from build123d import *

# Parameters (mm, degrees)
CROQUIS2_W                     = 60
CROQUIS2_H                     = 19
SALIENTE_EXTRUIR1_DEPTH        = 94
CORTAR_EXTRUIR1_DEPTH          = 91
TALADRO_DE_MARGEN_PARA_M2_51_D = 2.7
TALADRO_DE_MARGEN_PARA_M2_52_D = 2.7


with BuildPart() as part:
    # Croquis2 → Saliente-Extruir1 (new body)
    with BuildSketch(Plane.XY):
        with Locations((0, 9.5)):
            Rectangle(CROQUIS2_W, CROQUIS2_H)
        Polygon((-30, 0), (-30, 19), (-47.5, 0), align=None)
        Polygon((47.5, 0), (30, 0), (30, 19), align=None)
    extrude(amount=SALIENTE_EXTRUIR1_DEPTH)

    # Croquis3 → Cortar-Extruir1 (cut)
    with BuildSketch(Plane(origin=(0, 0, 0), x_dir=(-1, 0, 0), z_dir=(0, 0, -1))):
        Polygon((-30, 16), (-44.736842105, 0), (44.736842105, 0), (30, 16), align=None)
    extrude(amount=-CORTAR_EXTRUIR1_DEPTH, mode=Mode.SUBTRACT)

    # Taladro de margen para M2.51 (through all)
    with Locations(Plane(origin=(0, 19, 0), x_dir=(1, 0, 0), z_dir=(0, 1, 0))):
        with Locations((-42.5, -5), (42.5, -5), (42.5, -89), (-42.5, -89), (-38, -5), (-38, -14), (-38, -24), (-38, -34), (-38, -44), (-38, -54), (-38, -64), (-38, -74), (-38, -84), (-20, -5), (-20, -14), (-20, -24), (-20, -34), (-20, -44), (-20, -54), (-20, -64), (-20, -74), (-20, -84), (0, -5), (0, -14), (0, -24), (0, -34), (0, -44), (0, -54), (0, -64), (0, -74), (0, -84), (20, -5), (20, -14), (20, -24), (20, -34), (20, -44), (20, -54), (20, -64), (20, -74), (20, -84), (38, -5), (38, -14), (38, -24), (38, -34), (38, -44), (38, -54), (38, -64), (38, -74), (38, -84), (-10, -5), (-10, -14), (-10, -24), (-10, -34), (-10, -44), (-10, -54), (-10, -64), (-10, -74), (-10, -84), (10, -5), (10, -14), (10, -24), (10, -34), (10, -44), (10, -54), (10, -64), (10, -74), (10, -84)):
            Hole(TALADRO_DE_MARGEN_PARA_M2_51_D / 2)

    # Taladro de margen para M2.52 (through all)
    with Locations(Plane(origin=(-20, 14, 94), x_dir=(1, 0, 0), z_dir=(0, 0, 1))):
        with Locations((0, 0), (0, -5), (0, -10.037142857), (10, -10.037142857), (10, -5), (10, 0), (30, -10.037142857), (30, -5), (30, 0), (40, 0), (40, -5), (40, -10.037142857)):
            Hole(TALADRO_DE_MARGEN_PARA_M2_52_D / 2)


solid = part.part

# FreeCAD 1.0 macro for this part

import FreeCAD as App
import Part
import Sketcher


def add_polygon(sketch, points):
    """Adds a closed chain of lines whose ends are joined by coincident constraints."""
    first, n = sketch.GeometryCount, len(points)
    for a, b in zip(points, points[1:] + points[:1]):
        sketch.addGeometry(Part.LineSegment(App.Vector(*a, 0), App.Vector(*b, 0)), False)
    for i in range(n):
        sketch.addConstraint(Sketcher.Constraint("Coincident", first + i, 2, first + (i + 1) % n, 1))

doc = App.newDocument("Part")
params = doc.addObject("Spreadsheet::Sheet", "Params")
for row, (alias, value) in enumerate([
    ("sketch1_width", "60 mm"),
    ("sketch1_width2", "95 mm"),
    ("pad1_length", "94 mm"),
    ("sketch2_width", "60 mm"),
    ("pocket1_length", "91 mm"),
    ("sketch3_diameter", "2.7 mm"),
    ("hole_diameter", "2.7 mm"),
    ("sketch4_diameter", "2.7 mm"),
    ("hole2_diameter", "2.7 mm"),
], start=1):
    params.set(f"A{row}", alias)
    params.set(f"B{row}", "=" + value)
    params.setAlias(f"B{row}", alias)

body = doc.addObject("PartDesign::Body", "Body")

# Sketch on XY plane
sketch1 = body.newObject("Sketcher::SketchObject", "Sketch")
sketch1.AttachmentSupport = (doc.getObject("XY_Plane"), [""])
sketch1.MapMode = "FlatFace"
add_polygon(sketch1, [(30, 19), (-30, 19), (-48, 0), (48, 0)])  # lines 0-3
sketch1.addConstraint(Sketcher.Constraint("Horizontal", 0))
sketch1.addConstraint(Sketcher.Constraint("Horizontal", 2))
sketch1.addConstraint(Sketcher.Constraint("Symmetric", 1, 2, 2, 2, -1, 1))
sketch1.addConstraint(Sketcher.Constraint("Equal", 1, 3))
sketch1.addConstraint(Sketcher.Constraint("DistanceX", 0, 2, 0, 1, 60.0))
sketch1.addConstraint(Sketcher.Constraint("DistanceX", 2, 1, 2, 2, 95.0))
sketch1.addConstraint(Sketcher.Constraint("DistanceY", -1, 1, 0, 2, 19.0))
sketch1.setExpression("Constraints[8]", "Params.sketch1_width")
sketch1.setExpression("Constraints[9]", "Params.sketch1_width2")
pad1 = body.newObject("PartDesign::Pad", "Pad")
pad1.Profile = sketch1
pad1.setExpression("Length", "Params.pad1_length")

# Sketch on XY plane
sketch2 = body.newObject("Sketcher::SketchObject", "Sketch001")
sketch2.AttachmentSupport = (doc.getObject("XY_Plane"), [""])
sketch2.MapMode = "FlatFace"
add_polygon(sketch2, [(30, 16), (45, 0), (-45, 0), (-30, 16)])  # lines 0-3
sketch2.addConstraint(Sketcher.Constraint("Horizontal", 1))
sketch2.addConstraint(Sketcher.Constraint("Horizontal", 3))
sketch2.addConstraint(Sketcher.Constraint("Symmetric", 0, 2, 1, 2, -1, 1))
sketch2.addConstraint(Sketcher.Constraint("Equal", 0, 2))
sketch2.addConstraint(Sketcher.Constraint("DistanceX", 3, 1, 3, 2, 60.0))
sketch2.addConstraint(Sketcher.Constraint("DistanceY", -1, 1, 2, 2, 16.0))
sketch2.addConstraint(Sketcher.Constraint("DistanceX", 1, 2, 1, 1, 89.473684))
sketch2.setExpression("Constraints[8]", "Params.sketch2_width")
pocket1 = body.newObject("PartDesign::Pocket", "Pocket")
pocket1.Profile = sketch2
pocket1.setExpression("Length", "Params.pocket1_length")
pocket1.Reversed = True

# Sketch on XZ plane
sketch3 = body.newObject("Sketcher::SketchObject", "Sketch002")
sketch3.AttachmentSupport = (doc.getObject("XZ_Plane"), [""])
sketch3.MapMode = "FlatFace"
sketch3.AttachmentOffset = App.Placement(App.Vector(0, 0, -19), App.Rotation())
sketch3.addGeometry(Part.Circle(App.Vector(-42.5, 5, 0), App.Vector(0, 0, 1), 1.4), False)
sketch3.addGeometry(Part.Circle(App.Vector(42.5, 5, 0), App.Vector(0, 0, 1), 1.4), False)
sketch3.addGeometry(Part.Circle(App.Vector(42.5, 89, 0), App.Vector(0, 0, 1), 1.4), False)
sketch3.addGeometry(Part.Circle(App.Vector(-42.5, 89, 0), App.Vector(0, 0, 1), 1.4), False)
sketch3.addGeometry(Part.Circle(App.Vector(-38, 5, 0), App.Vector(0, 0, 1), 1.4), False)
sketch3.addGeometry(Part.Circle(App.Vector(-38, 14, 0), App.Vector(0, 0, 1), 1.4), False)
sketch3.addGeometry(Part.Circle(App.Vector(-38, 24, 0), App.Vector(0, 0, 1), 1.4), False)
sketch3.addGeometry(Part.Circle(App.Vector(-38, 34, 0), App.Vector(0, 0, 1), 1.4), False)
sketch3.addGeometry(Part.Circle(App.Vector(-38, 44, 0), App.Vector(0, 0, 1), 1.4), False)
sketch3.addGeometry(Part.Circle(App.Vector(-38, 54, 0), App.Vector(0, 0, 1), 1.4), False)
sketch3.addGeometry(Part.Circle(App.Vector(-38, 64, 0), App.Vector(0, 0, 1), 1.4), False)
sketch3.addGeometry(Part.Circle(App.Vector(-38, 74, 0), App.Vector(0, 0, 1), 1.4), False)
sketch3.addGeometry(Part.Circle(App.Vector(-38, 84, 0), App.Vector(0, 0, 1), 1.4), False)
sketch3.addGeometry(Part.Circle(App.Vector(-20, 5, 0), App.Vector(0, 0, 1), 1.4), False)
sketch3.addGeometry(Part.Circle(App.Vector(-20, 14, 0), App.Vector(0, 0, 1), 1.4), False)
sketch3.addGeometry(Part.Circle(App.Vector(-20, 24, 0), App.Vector(0, 0, 1), 1.4), False)
sketch3.addGeometry(Part.Circle(App.Vector(-20, 34, 0), App.Vector(0, 0, 1), 1.4), False)
sketch3.addGeometry(Part.Circle(App.Vector(-20, 44, 0), App.Vector(0, 0, 1), 1.4), False)
sketch3.addGeometry(Part.Circle(App.Vector(-20, 54, 0), App.Vector(0, 0, 1), 1.4), False)
sketch3.addGeometry(Part.Circle(App.Vector(-20, 64, 0), App.Vector(0, 0, 1), 1.4), False)
sketch3.addGeometry(Part.Circle(App.Vector(-20, 74, 0), App.Vector(0, 0, 1), 1.4), False)
sketch3.addGeometry(Part.Circle(App.Vector(-20, 84, 0), App.Vector(0, 0, 1), 1.4), False)
sketch3.addGeometry(Part.Circle(App.Vector(0, 5, 0), App.Vector(0, 0, 1), 1.4), False)
sketch3.addGeometry(Part.Circle(App.Vector(0, 14, 0), App.Vector(0, 0, 1), 1.4), False)
sketch3.addGeometry(Part.Circle(App.Vector(0, 24, 0), App.Vector(0, 0, 1), 1.4), False)
sketch3.addGeometry(Part.Circle(App.Vector(0, 34, 0), App.Vector(0, 0, 1), 1.4), False)
sketch3.addGeometry(Part.Circle(App.Vector(0, 44, 0), App.Vector(0, 0, 1), 1.4), False)
sketch3.addGeometry(Part.Circle(App.Vector(0, 54, 0), App.Vector(0, 0, 1), 1.4), False)
sketch3.addGeometry(Part.Circle(App.Vector(0, 64, 0), App.Vector(0, 0, 1), 1.4), False)
sketch3.addGeometry(Part.Circle(App.Vector(0, 74, 0), App.Vector(0, 0, 1), 1.4), False)
sketch3.addGeometry(Part.Circle(App.Vector(0, 84, 0), App.Vector(0, 0, 1), 1.4), False)
sketch3.addGeometry(Part.Circle(App.Vector(20, 5, 0), App.Vector(0, 0, 1), 1.4), False)
sketch3.addGeometry(Part.Circle(App.Vector(20, 14, 0), App.Vector(0, 0, 1), 1.4), False)
sketch3.addGeometry(Part.Circle(App.Vector(20, 24, 0), App.Vector(0, 0, 1), 1.4), False)
sketch3.addGeometry(Part.Circle(App.Vector(20, 34, 0), App.Vector(0, 0, 1), 1.4), False)
sketch3.addGeometry(Part.Circle(App.Vector(20, 44, 0), App.Vector(0, 0, 1), 1.4), False)
sketch3.addGeometry(Part.Circle(App.Vector(20, 54, 0), App.Vector(0, 0, 1), 1.4), False)
sketch3.addGeometry(Part.Circle(App.Vector(20, 64, 0), App.Vector(0, 0, 1), 1.4), False)
sketch3.addGeometry(Part.Circle(App.Vector(20, 74, 0), App.Vector(0, 0, 1), 1.4), False)
sketch3.addGeometry(Part.Circle(App.Vector(20, 84, 0), App.Vector(0, 0, 1), 1.4), False)
sketch3.addGeometry(Part.Circle(App.Vector(38, 5, 0), App.Vector(0, 0, 1), 1.4), False)
sketch3.addGeometry(Part.Circle(App.Vector(38, 14, 0), App.Vector(0, 0, 1), 1.4), False)
sketch3.addGeometry(Part.Circle(App.Vector(38, 24, 0), App.Vector(0, 0, 1), 1.4), False)
sketch3.addGeometry(Part.Circle(App.Vector(38, 34, 0), App.Vector(0, 0, 1), 1.4), False)
sketch3.addGeometry(Part.Circle(App.Vector(38, 44, 0), App.Vector(0, 0, 1), 1.4), False)
sketch3.addGeometry(Part.Circle(App.Vector(38, 54, 0), App.Vector(0, 0, 1), 1.4), False)
sketch3.addGeometry(Part.Circle(App.Vector(38, 64, 0), App.Vector(0, 0, 1), 1.4), False)
sketch3.addGeometry(Part.Circle(App.Vector(38, 74, 0), App.Vector(0, 0, 1), 1.4), False)
sketch3.addGeometry(Part.Circle(App.Vector(38, 84, 0), App.Vector(0, 0, 1), 1.4), False)
sketch3.addGeometry(Part.Circle(App.Vector(-10, 5, 0), App.Vector(0, 0, 1), 1.4), False)
sketch3.addGeometry(Part.Circle(App.Vector(-10, 14, 0), App.Vector(0, 0, 1), 1.4), False)
sketch3.addGeometry(Part.Circle(App.Vector(-10, 24, 0), App.Vector(0, 0, 1), 1.4), False)
sketch3.addGeometry(Part.Circle(App.Vector(-10, 34, 0), App.Vector(0, 0, 1), 1.4), False)
sketch3.addGeometry(Part.Circle(App.Vector(-10, 44, 0), App.Vector(0, 0, 1), 1.4), False)
sketch3.addGeometry(Part.Circle(App.Vector(-10, 54, 0), App.Vector(0, 0, 1), 1.4), False)
sketch3.addGeometry(Part.Circle(App.Vector(-10, 64, 0), App.Vector(0, 0, 1), 1.4), False)
sketch3.addGeometry(Part.Circle(App.Vector(-10, 74, 0), App.Vector(0, 0, 1), 1.4), False)
sketch3.addGeometry(Part.Circle(App.Vector(-10, 84, 0), App.Vector(0, 0, 1), 1.4), False)
sketch3.addGeometry(Part.Circle(App.Vector(10, 5, 0), App.Vector(0, 0, 1), 1.4), False)
sketch3.addGeometry(Part.Circle(App.Vector(10, 14, 0), App.Vector(0, 0, 1), 1.4), False)
sketch3.addGeometry(Part.Circle(App.Vector(10, 24, 0), App.Vector(0, 0, 1), 1.4), False)
sketch3.addGeometry(Part.Circle(App.Vector(10, 34, 0), App.Vector(0, 0, 1), 1.4), False)
sketch3.addGeometry(Part.Circle(App.Vector(10, 44, 0), App.Vector(0, 0, 1), 1.4), False)
sketch3.addGeometry(Part.Circle(App.Vector(10, 54, 0), App.Vector(0, 0, 1), 1.4), False)
sketch3.addGeometry(Part.Circle(App.Vector(10, 64, 0), App.Vector(0, 0, 1), 1.4), False)
sketch3.addGeometry(Part.Circle(App.Vector(10, 74, 0), App.Vector(0, 0, 1), 1.4), False)
sketch3.addGeometry(Part.Circle(App.Vector(10, 84, 0), App.Vector(0, 0, 1), 1.4), False)
sketch3.addConstraint(Sketcher.Constraint("Equal", 0, 1))
sketch3.addConstraint(Sketcher.Constraint("Equal", 1, 2))
sketch3.addConstraint(Sketcher.Constraint("Equal", 2, 3))
sketch3.addConstraint(Sketcher.Constraint("Equal", 3, 4))
sketch3.addConstraint(Sketcher.Constraint("Equal", 4, 5))
sketch3.addConstraint(Sketcher.Constraint("Equal", 5, 6))
sketch3.addConstraint(Sketcher.Constraint("Equal", 6, 7))
sketch3.addConstraint(Sketcher.Constraint("Equal", 7, 8))
sketch3.addConstraint(Sketcher.Constraint("Equal", 8, 9))
sketch3.addConstraint(Sketcher.Constraint("Equal", 9, 10))
sketch3.addConstraint(Sketcher.Constraint("Equal", 10, 11))
sketch3.addConstraint(Sketcher.Constraint("Equal", 11, 12))
sketch3.addConstraint(Sketcher.Constraint("Equal", 12, 13))
sketch3.addConstraint(Sketcher.Constraint("Equal", 13, 14))
sketch3.addConstraint(Sketcher.Constraint("Equal", 14, 15))
sketch3.addConstraint(Sketcher.Constraint("Equal", 15, 16))
sketch3.addConstraint(Sketcher.Constraint("Equal", 16, 17))
sketch3.addConstraint(Sketcher.Constraint("Equal", 17, 18))
sketch3.addConstraint(Sketcher.Constraint("Equal", 18, 19))
sketch3.addConstraint(Sketcher.Constraint("Equal", 19, 20))
sketch3.addConstraint(Sketcher.Constraint("Equal", 20, 21))
sketch3.addConstraint(Sketcher.Constraint("Equal", 21, 22))
sketch3.addConstraint(Sketcher.Constraint("Equal", 22, 23))
sketch3.addConstraint(Sketcher.Constraint("Equal", 23, 24))
sketch3.addConstraint(Sketcher.Constraint("Equal", 24, 25))
sketch3.addConstraint(Sketcher.Constraint("Equal", 25, 26))
sketch3.addConstraint(Sketcher.Constraint("Equal", 26, 27))
sketch3.addConstraint(Sketcher.Constraint("Equal", 27, 28))
sketch3.addConstraint(Sketcher.Constraint("Equal", 28, 29))
sketch3.addConstraint(Sketcher.Constraint("Equal", 29, 30))
sketch3.addConstraint(Sketcher.Constraint("Equal", 30, 31))
sketch3.addConstraint(Sketcher.Constraint("Equal", 31, 32))
sketch3.addConstraint(Sketcher.Constraint("Equal", 32, 33))
sketch3.addConstraint(Sketcher.Constraint("Equal", 33, 34))
sketch3.addConstraint(Sketcher.Constraint("Equal", 34, 35))
sketch3.addConstraint(Sketcher.Constraint("Equal", 35, 36))
sketch3.addConstraint(Sketcher.Constraint("Equal", 36, 37))
sketch3.addConstraint(Sketcher.Constraint("Equal", 37, 38))
sketch3.addConstraint(Sketcher.Constraint("Equal", 38, 39))
sketch3.addConstraint(Sketcher.Constraint("Equal", 39, 40))
sketch3.addConstraint(Sketcher.Constraint("Equal", 40, 41))
sketch3.addConstraint(Sketcher.Constraint("Equal", 41, 42))
sketch3.addConstraint(Sketcher.Constraint("Equal", 42, 43))
sketch3.addConstraint(Sketcher.Constraint("Equal", 43, 44))
sketch3.addConstraint(Sketcher.Constraint("Equal", 44, 45))
sketch3.addConstraint(Sketcher.Constraint("Equal", 45, 46))
sketch3.addConstraint(Sketcher.Constraint("Equal", 46, 47))
sketch3.addConstraint(Sketcher.Constraint("Equal", 47, 48))
sketch3.addConstraint(Sketcher.Constraint("Equal", 48, 49))
sketch3.addConstraint(Sketcher.Constraint("Equal", 49, 50))
sketch3.addConstraint(Sketcher.Constraint("Equal", 50, 51))
sketch3.addConstraint(Sketcher.Constraint("Equal", 51, 52))
sketch3.addConstraint(Sketcher.Constraint("Equal", 52, 53))
sketch3.addConstraint(Sketcher.Constraint("Equal", 53, 54))
sketch3.addConstraint(Sketcher.Constraint("Equal", 54, 55))
sketch3.addConstraint(Sketcher.Constraint("Equal", 55, 56))
sketch3.addConstraint(Sketcher.Constraint("Equal", 56, 57))
sketch3.addConstraint(Sketcher.Constraint("Equal", 57, 58))
sketch3.addConstraint(Sketcher.Constraint("Equal", 58, 59))
sketch3.addConstraint(Sketcher.Constraint("Equal", 59, 60))
sketch3.addConstraint(Sketcher.Constraint("Equal", 60, 61))
sketch3.addConstraint(Sketcher.Constraint("Equal", 61, 62))
sketch3.addConstraint(Sketcher.Constraint("Equal", 62, 63))
sketch3.addConstraint(Sketcher.Constraint("Equal", 63, 64))
sketch3.addConstraint(Sketcher.Constraint("Equal", 64, 65))
sketch3.addConstraint(Sketcher.Constraint("Equal", 65, 66))
sketch3.addConstraint(Sketcher.Constraint("Symmetric", 0, 3, 1, 3, -2))
sketch3.addConstraint(Sketcher.Constraint("Symmetric", 2, 3, 3, 3, -2))
sketch3.addConstraint(Sketcher.Constraint("Symmetric", 13, 3, 31, 3, -2))
sketch3.addConstraint(Sketcher.Constraint("Symmetric", 14, 3, 32, 3, -2))
sketch3.addConstraint(Sketcher.Constraint("Symmetric", 15, 3, 33, 3, -2))
sketch3.addConstraint(Sketcher.Constraint("Symmetric", 16, 3, 34, 3, -2))
sketch3.addConstraint(Sketcher.Constraint("Symmetric", 17, 3, 35, 3, -2))
sketch3.addConstraint(Sketcher.Constraint("Symmetric", 18, 3, 36, 3, -2))
sketch3.addConstraint(Sketcher.Constraint("Symmetric", 19, 3, 37, 3, -2))
sketch3.addConstraint(Sketcher.Constraint("Symmetric", 20, 3, 38, 3, -2))
sketch3.addConstraint(Sketcher.Constraint("Symmetric", 21, 3, 39, 3, -2))
sketch3.addConstraint(Sketcher.Constraint("Symmetric", 4, 3, 40, 3, -2))
sketch3.addConstraint(Sketcher.Constraint("Symmetric", 5, 3, 41, 3, -2))
sketch3.addConstraint(Sketcher.Constraint("Symmetric", 6, 3, 42, 3, -2))
sketch3.addConstraint(Sketcher.Constraint("Symmetric", 7, 3, 43, 3, -2))
sketch3.addConstraint(Sketcher.Constraint("Symmetric", 8, 3, 44, 3, -2))
sketch3.addConstraint(Sketcher.Constraint("Symmetric", 9, 3, 45, 3, -2))
sketch3.addConstraint(Sketcher.Constraint("Symmetric", 10, 3, 46, 3, -2))
sketch3.addConstraint(Sketcher.Constraint("Symmetric", 11, 3, 47, 3, -2))
sketch3.addConstraint(Sketcher.Constraint("Symmetric", 12, 3, 48, 3, -2))
sketch3.addConstraint(Sketcher.Constraint("Symmetric", 49, 3, 58, 3, -2))
sketch3.addConstraint(Sketcher.Constraint("Symmetric", 50, 3, 59, 3, -2))
sketch3.addConstraint(Sketcher.Constraint("Symmetric", 51, 3, 60, 3, -2))
sketch3.addConstraint(Sketcher.Constraint("Symmetric", 52, 3, 61, 3, -2))
sketch3.addConstraint(Sketcher.Constraint("Symmetric", 53, 3, 62, 3, -2))
sketch3.addConstraint(Sketcher.Constraint("Symmetric", 54, 3, 63, 3, -2))
sketch3.addConstraint(Sketcher.Constraint("Symmetric", 55, 3, 64, 3, -2))
sketch3.addConstraint(Sketcher.Constraint("Symmetric", 56, 3, 65, 3, -2))
sketch3.addConstraint(Sketcher.Constraint("Symmetric", 57, 3, 66, 3, -2))
sketch3.addConstraint(Sketcher.Constraint("PointOnObject", 22, 3, -2))
sketch3.addConstraint(Sketcher.Constraint("PointOnObject", 23, 3, -2))
sketch3.addConstraint(Sketcher.Constraint("PointOnObject", 24, 3, -2))
sketch3.addConstraint(Sketcher.Constraint("PointOnObject", 25, 3, -2))
sketch3.addConstraint(Sketcher.Constraint("PointOnObject", 26, 3, -2))
sketch3.addConstraint(Sketcher.Constraint("PointOnObject", 27, 3, -2))
sketch3.addConstraint(Sketcher.Constraint("PointOnObject", 28, 3, -2))
sketch3.addConstraint(Sketcher.Constraint("PointOnObject", 29, 3, -2))
sketch3.addConstraint(Sketcher.Constraint("PointOnObject", 30, 3, -2))
sketch3.addConstraint(Sketcher.Constraint("Horizontal", 1, 3, 4, 3))
sketch3.addConstraint(Sketcher.Constraint("Horizontal", 4, 3, 13, 3))
sketch3.addConstraint(Sketcher.Constraint("Horizontal", 5, 3, 14, 3))
sketch3.addConstraint(Sketcher.Constraint("Horizontal", 6, 3, 15, 3))
sketch3.addConstraint(Sketcher.Constraint("Horizontal", 7, 3, 16, 3))
sketch3.addConstraint(Sketcher.Constraint("Horizontal", 8, 3, 17, 3))
sketch3.addConstraint(Sketcher.Constraint("Horizontal", 9, 3, 18, 3))
sketch3.addConstraint(Sketcher.Constraint("Horizontal", 10, 3, 19, 3))
sketch3.addConstraint(Sketcher.Constraint("Horizontal", 11, 3, 20, 3))
sketch3.addConstraint(Sketcher.Constraint("Horizontal", 12, 3, 21, 3))
sketch3.addConstraint(Sketcher.Constraint("Horizontal", 13, 3, 22, 3))
sketch3.addConstraint(Sketcher.Constraint("Horizontal", 14, 3, 23, 3))
sketch3.addConstraint(Sketcher.Constraint("Horizontal", 15, 3, 24, 3))
sketch3.addConstraint(Sketcher.Constraint("Horizontal", 16, 3, 25, 3))
sketch3.addConstraint(Sketcher.Constraint("Horizontal", 17, 3, 26, 3))
sketch3.addConstraint(Sketcher.Constraint("Horizontal", 18, 3, 27, 3))
sketch3.addConstraint(Sketcher.Constraint("Horizontal", 19, 3, 28, 3))
sketch3.addConstraint(Sketcher.Constraint("Horizontal", 20, 3, 29, 3))
sketch3.addConstraint(Sketcher.Constraint("Horizontal", 21, 3, 30, 3))
sketch3.addConstraint(Sketcher.Constraint("Horizontal", 40, 3, 49, 3))
sketch3.addConstraint(Sketcher.Constraint("Horizontal", 41, 3, 50, 3))
sketch3.addConstraint(Sketcher.Constraint("Horizontal", 42, 3, 51, 3))
sketch3.addConstraint(Sketcher.Constraint("Horizontal", 43, 3, 52, 3))
sketch3.addConstraint(Sketcher.Constraint("Horizontal", 44, 3, 53, 3))
sketch3.addConstraint(Sketcher.Constraint("Horizontal", 45, 3, 54, 3))
sketch3.addConstraint(Sketcher.Constraint("Horizontal", 46, 3, 55, 3))
sketch3.addConstraint(Sketcher.Constraint("Horizontal", 47, 3, 56, 3))
sketch3.addConstraint(Sketcher.Constraint("Horizontal", 48, 3, 57, 3))
sketch3.addConstraint(Sketcher.Constraint("Vertical", 1, 3, 2, 3))
sketch3.addConstraint(Sketcher.Constraint("Vertical", 4, 3, 5, 3))
sketch3.addConstraint(Sketcher.Constraint("Vertical", 5, 3, 6, 3))
sketch3.addConstraint(Sketcher.Constraint("Vertical", 6, 3, 7, 3))
sketch3.addConstraint(Sketcher.Constraint("Vertical", 7, 3, 8, 3))
sketch3.addConstraint(Sketcher.Constraint("Vertical", 8, 3, 9, 3))
sketch3.addConstraint(Sketcher.Constraint("Vertical", 9, 3, 10, 3))
sketch3.addConstraint(Sketcher.Constraint("Vertical", 10, 3, 11, 3))
sketch3.addConstraint(Sketcher.Constraint("Vertical", 11, 3, 12, 3))
sketch3.addConstraint(Sketcher.Constraint("Vertical", 13, 3, 14, 3))
sketch3.addConstraint(Sketcher.Constraint("Vertical", 14, 3, 15, 3))
sketch3.addConstraint(Sketcher.Constraint("Vertical", 15, 3, 16, 3))
sketch3.addConstraint(Sketcher.Constraint("Vertical", 16, 3, 17, 3))
sketch3.addConstraint(Sketcher.Constraint("Vertical", 17, 3, 18, 3))
sketch3.addConstraint(Sketcher.Constraint("Vertical", 18, 3, 19, 3))
sketch3.addConstraint(Sketcher.Constraint("Vertical", 19, 3, 20, 3))
sketch3.addConstraint(Sketcher.Constraint("Vertical", 20, 3, 21, 3))
sketch3.addConstraint(Sketcher.Constraint("Vertical", 49, 3, 50, 3))
sketch3.addConstraint(Sketcher.Constraint("Vertical", 50, 3, 51, 3))
sketch3.addConstraint(Sketcher.Constraint("Vertical", 51, 3, 52, 3))
sketch3.addConstraint(Sketcher.Constraint("Vertical", 52, 3, 53, 3))
sketch3.addConstraint(Sketcher.Constraint("Vertical", 53, 3, 54, 3))
sketch3.addConstraint(Sketcher.Constraint("Vertical", 54, 3, 55, 3))
sketch3.addConstraint(Sketcher.Constraint("Vertical", 55, 3, 56, 3))
sketch3.addConstraint(Sketcher.Constraint("Vertical", 56, 3, 57, 3))
sketch3.addConstraint(Sketcher.Constraint("Diameter", 0, 2.7))
sketch3.addConstraint(Sketcher.Constraint("DistanceY", -1, 1, 0, 3, 5.0))
sketch3.addConstraint(Sketcher.Constraint("DistanceY", -1, 1, 2, 3, 89.0))
sketch3.addConstraint(Sketcher.Constraint("DistanceX", 4, 3, -1, 1, 38.0))
sketch3.addConstraint(Sketcher.Constraint("DistanceY", -1, 1, 5, 3, 14.0))
sketch3.addConstraint(Sketcher.Constraint("DistanceY", -1, 1, 6, 3, 24.0))
sketch3.addConstraint(Sketcher.Constraint("DistanceY", -1, 1, 7, 3, 34.0))
sketch3.addConstraint(Sketcher.Constraint("DistanceY", -1, 1, 8, 3, 44.0))
sketch3.addConstraint(Sketcher.Constraint("DistanceY", -1, 1, 9, 3, 54.0))
sketch3.addConstraint(Sketcher.Constraint("DistanceY", -1, 1, 10, 3, 64.0))
sketch3.addConstraint(Sketcher.Constraint("DistanceY", -1, 1, 11, 3, 74.0))
sketch3.addConstraint(Sketcher.Constraint("DistanceY", -1, 1, 12, 3, 84.0))
sketch3.addConstraint(Sketcher.Constraint("DistanceX", 13, 3, -1, 1, 20.0))
sketch3.addConstraint(Sketcher.Constraint("DistanceX", 49, 3, -1, 1, 10.0))
sketch3.addConstraint(Sketcher.Constraint("DistanceX", 0, 3, -1, 1, 42.5))
sketch3.setExpression("Constraints[157]", "Params.sketch3_diameter")
doc.recompute()
hole = body.newObject("PartDesign::Hole", "Hole")
hole.Profile = sketch3
hole.ThreadType = "None"
hole.setExpression("Diameter", "Params.hole_diameter")
hole.DepthType = "ThroughAll"
hole.Reversed = True

# Sketch on XY plane
sketch4 = body.newObject("Sketcher::SketchObject", "Sketch003")
sketch4.AttachmentSupport = (doc.getObject("XY_Plane"), [""])
sketch4.MapMode = "FlatFace"
sketch4.AttachmentOffset = App.Placement(App.Vector(0, 0, 94), App.Rotation())
sketch4.addGeometry(Part.Circle(App.Vector(-20, 14, 0), App.Vector(0, 0, 1), 1.4), False)
sketch4.addGeometry(Part.Circle(App.Vector(-20, 9, 0), App.Vector(0, 0, 1), 1.4), False)
sketch4.addGeometry(Part.Circle(App.Vector(-20, 4, 0), App.Vector(0, 0, 1), 1.4), False)
sketch4.addGeometry(Part.Circle(App.Vector(-10, 4, 0), App.Vector(0, 0, 1), 1.4), False)
sketch4.addGeometry(Part.Circle(App.Vector(-10, 9, 0), App.Vector(0, 0, 1), 1.4), False)
sketch4.addGeometry(Part.Circle(App.Vector(-10, 14, 0), App.Vector(0, 0, 1), 1.4), False)
sketch4.addGeometry(Part.Circle(App.Vector(10, 4, 0), App.Vector(0, 0, 1), 1.4), False)
sketch4.addGeometry(Part.Circle(App.Vector(10, 9, 0), App.Vector(0, 0, 1), 1.4), False)
sketch4.addGeometry(Part.Circle(App.Vector(10, 14, 0), App.Vector(0, 0, 1), 1.4), False)
sketch4.addGeometry(Part.Circle(App.Vector(20, 14, 0), App.Vector(0, 0, 1), 1.4), False)
sketch4.addGeometry(Part.Circle(App.Vector(20, 9, 0), App.Vector(0, 0, 1), 1.4), False)
sketch4.addGeometry(Part.Circle(App.Vector(20, 4, 0), App.Vector(0, 0, 1), 1.4), False)
sketch4.addConstraint(Sketcher.Constraint("Equal", 0, 1))
sketch4.addConstraint(Sketcher.Constraint("Equal", 1, 2))
sketch4.addConstraint(Sketcher.Constraint("Equal", 2, 3))
sketch4.addConstraint(Sketcher.Constraint("Equal", 3, 4))
sketch4.addConstraint(Sketcher.Constraint("Equal", 4, 5))
sketch4.addConstraint(Sketcher.Constraint("Equal", 5, 6))
sketch4.addConstraint(Sketcher.Constraint("Equal", 6, 7))
sketch4.addConstraint(Sketcher.Constraint("Equal", 7, 8))
sketch4.addConstraint(Sketcher.Constraint("Equal", 8, 9))
sketch4.addConstraint(Sketcher.Constraint("Equal", 9, 10))
sketch4.addConstraint(Sketcher.Constraint("Equal", 10, 11))
sketch4.addConstraint(Sketcher.Constraint("Symmetric", 3, 3, 6, 3, -2))
sketch4.addConstraint(Sketcher.Constraint("Symmetric", 4, 3, 7, 3, -2))
sketch4.addConstraint(Sketcher.Constraint("Symmetric", 5, 3, 8, 3, -2))
sketch4.addConstraint(Sketcher.Constraint("Symmetric", 0, 3, 9, 3, -2))
sketch4.addConstraint(Sketcher.Constraint("Symmetric", 1, 3, 10, 3, -2))
sketch4.addConstraint(Sketcher.Constraint("Symmetric", 2, 3, 11, 3, -2))
sketch4.addConstraint(Sketcher.Constraint("Horizontal", 2, 3, 3, 3))
sketch4.addConstraint(Sketcher.Constraint("Horizontal", 1, 3, 4, 3))
sketch4.addConstraint(Sketcher.Constraint("Horizontal", 0, 3, 5, 3))
sketch4.addConstraint(Sketcher.Constraint("Vertical", 0, 3, 1, 3))
sketch4.addConstraint(Sketcher.Constraint("Vertical", 1, 3, 2, 3))
sketch4.addConstraint(Sketcher.Constraint("Vertical", 3, 3, 4, 3))
sketch4.addConstraint(Sketcher.Constraint("Vertical", 4, 3, 5, 3))
sketch4.addConstraint(Sketcher.Constraint("Diameter", 0, 2.7))
sketch4.addConstraint(Sketcher.Constraint("DistanceX", 0, 3, -1, 1, 20.0))
sketch4.addConstraint(Sketcher.Constraint("DistanceY", -1, 1, 0, 3, 14.0))
sketch4.addConstraint(Sketcher.Constraint("DistanceY", -1, 1, 1, 3, 9.0))
sketch4.addConstraint(Sketcher.Constraint("DistanceX", 3, 3, -1, 1, 10.0))
sketch4.addConstraint(Sketcher.Constraint("DistanceY", -1, 1, 2, 3, 3.962857))
sketch4.setExpression("Constraints[24]", "Params.sketch4_diameter")
doc.recompute()
hole2 = body.newObject("PartDesign::Hole", "Hole001")
hole2.Profile = sketch4
hole2.ThreadType = "None"
hole2.setExpression("Diameter", "Params.hole2_diameter")
hole2.DepthType = "ThroughAll"

doc.recompute()
